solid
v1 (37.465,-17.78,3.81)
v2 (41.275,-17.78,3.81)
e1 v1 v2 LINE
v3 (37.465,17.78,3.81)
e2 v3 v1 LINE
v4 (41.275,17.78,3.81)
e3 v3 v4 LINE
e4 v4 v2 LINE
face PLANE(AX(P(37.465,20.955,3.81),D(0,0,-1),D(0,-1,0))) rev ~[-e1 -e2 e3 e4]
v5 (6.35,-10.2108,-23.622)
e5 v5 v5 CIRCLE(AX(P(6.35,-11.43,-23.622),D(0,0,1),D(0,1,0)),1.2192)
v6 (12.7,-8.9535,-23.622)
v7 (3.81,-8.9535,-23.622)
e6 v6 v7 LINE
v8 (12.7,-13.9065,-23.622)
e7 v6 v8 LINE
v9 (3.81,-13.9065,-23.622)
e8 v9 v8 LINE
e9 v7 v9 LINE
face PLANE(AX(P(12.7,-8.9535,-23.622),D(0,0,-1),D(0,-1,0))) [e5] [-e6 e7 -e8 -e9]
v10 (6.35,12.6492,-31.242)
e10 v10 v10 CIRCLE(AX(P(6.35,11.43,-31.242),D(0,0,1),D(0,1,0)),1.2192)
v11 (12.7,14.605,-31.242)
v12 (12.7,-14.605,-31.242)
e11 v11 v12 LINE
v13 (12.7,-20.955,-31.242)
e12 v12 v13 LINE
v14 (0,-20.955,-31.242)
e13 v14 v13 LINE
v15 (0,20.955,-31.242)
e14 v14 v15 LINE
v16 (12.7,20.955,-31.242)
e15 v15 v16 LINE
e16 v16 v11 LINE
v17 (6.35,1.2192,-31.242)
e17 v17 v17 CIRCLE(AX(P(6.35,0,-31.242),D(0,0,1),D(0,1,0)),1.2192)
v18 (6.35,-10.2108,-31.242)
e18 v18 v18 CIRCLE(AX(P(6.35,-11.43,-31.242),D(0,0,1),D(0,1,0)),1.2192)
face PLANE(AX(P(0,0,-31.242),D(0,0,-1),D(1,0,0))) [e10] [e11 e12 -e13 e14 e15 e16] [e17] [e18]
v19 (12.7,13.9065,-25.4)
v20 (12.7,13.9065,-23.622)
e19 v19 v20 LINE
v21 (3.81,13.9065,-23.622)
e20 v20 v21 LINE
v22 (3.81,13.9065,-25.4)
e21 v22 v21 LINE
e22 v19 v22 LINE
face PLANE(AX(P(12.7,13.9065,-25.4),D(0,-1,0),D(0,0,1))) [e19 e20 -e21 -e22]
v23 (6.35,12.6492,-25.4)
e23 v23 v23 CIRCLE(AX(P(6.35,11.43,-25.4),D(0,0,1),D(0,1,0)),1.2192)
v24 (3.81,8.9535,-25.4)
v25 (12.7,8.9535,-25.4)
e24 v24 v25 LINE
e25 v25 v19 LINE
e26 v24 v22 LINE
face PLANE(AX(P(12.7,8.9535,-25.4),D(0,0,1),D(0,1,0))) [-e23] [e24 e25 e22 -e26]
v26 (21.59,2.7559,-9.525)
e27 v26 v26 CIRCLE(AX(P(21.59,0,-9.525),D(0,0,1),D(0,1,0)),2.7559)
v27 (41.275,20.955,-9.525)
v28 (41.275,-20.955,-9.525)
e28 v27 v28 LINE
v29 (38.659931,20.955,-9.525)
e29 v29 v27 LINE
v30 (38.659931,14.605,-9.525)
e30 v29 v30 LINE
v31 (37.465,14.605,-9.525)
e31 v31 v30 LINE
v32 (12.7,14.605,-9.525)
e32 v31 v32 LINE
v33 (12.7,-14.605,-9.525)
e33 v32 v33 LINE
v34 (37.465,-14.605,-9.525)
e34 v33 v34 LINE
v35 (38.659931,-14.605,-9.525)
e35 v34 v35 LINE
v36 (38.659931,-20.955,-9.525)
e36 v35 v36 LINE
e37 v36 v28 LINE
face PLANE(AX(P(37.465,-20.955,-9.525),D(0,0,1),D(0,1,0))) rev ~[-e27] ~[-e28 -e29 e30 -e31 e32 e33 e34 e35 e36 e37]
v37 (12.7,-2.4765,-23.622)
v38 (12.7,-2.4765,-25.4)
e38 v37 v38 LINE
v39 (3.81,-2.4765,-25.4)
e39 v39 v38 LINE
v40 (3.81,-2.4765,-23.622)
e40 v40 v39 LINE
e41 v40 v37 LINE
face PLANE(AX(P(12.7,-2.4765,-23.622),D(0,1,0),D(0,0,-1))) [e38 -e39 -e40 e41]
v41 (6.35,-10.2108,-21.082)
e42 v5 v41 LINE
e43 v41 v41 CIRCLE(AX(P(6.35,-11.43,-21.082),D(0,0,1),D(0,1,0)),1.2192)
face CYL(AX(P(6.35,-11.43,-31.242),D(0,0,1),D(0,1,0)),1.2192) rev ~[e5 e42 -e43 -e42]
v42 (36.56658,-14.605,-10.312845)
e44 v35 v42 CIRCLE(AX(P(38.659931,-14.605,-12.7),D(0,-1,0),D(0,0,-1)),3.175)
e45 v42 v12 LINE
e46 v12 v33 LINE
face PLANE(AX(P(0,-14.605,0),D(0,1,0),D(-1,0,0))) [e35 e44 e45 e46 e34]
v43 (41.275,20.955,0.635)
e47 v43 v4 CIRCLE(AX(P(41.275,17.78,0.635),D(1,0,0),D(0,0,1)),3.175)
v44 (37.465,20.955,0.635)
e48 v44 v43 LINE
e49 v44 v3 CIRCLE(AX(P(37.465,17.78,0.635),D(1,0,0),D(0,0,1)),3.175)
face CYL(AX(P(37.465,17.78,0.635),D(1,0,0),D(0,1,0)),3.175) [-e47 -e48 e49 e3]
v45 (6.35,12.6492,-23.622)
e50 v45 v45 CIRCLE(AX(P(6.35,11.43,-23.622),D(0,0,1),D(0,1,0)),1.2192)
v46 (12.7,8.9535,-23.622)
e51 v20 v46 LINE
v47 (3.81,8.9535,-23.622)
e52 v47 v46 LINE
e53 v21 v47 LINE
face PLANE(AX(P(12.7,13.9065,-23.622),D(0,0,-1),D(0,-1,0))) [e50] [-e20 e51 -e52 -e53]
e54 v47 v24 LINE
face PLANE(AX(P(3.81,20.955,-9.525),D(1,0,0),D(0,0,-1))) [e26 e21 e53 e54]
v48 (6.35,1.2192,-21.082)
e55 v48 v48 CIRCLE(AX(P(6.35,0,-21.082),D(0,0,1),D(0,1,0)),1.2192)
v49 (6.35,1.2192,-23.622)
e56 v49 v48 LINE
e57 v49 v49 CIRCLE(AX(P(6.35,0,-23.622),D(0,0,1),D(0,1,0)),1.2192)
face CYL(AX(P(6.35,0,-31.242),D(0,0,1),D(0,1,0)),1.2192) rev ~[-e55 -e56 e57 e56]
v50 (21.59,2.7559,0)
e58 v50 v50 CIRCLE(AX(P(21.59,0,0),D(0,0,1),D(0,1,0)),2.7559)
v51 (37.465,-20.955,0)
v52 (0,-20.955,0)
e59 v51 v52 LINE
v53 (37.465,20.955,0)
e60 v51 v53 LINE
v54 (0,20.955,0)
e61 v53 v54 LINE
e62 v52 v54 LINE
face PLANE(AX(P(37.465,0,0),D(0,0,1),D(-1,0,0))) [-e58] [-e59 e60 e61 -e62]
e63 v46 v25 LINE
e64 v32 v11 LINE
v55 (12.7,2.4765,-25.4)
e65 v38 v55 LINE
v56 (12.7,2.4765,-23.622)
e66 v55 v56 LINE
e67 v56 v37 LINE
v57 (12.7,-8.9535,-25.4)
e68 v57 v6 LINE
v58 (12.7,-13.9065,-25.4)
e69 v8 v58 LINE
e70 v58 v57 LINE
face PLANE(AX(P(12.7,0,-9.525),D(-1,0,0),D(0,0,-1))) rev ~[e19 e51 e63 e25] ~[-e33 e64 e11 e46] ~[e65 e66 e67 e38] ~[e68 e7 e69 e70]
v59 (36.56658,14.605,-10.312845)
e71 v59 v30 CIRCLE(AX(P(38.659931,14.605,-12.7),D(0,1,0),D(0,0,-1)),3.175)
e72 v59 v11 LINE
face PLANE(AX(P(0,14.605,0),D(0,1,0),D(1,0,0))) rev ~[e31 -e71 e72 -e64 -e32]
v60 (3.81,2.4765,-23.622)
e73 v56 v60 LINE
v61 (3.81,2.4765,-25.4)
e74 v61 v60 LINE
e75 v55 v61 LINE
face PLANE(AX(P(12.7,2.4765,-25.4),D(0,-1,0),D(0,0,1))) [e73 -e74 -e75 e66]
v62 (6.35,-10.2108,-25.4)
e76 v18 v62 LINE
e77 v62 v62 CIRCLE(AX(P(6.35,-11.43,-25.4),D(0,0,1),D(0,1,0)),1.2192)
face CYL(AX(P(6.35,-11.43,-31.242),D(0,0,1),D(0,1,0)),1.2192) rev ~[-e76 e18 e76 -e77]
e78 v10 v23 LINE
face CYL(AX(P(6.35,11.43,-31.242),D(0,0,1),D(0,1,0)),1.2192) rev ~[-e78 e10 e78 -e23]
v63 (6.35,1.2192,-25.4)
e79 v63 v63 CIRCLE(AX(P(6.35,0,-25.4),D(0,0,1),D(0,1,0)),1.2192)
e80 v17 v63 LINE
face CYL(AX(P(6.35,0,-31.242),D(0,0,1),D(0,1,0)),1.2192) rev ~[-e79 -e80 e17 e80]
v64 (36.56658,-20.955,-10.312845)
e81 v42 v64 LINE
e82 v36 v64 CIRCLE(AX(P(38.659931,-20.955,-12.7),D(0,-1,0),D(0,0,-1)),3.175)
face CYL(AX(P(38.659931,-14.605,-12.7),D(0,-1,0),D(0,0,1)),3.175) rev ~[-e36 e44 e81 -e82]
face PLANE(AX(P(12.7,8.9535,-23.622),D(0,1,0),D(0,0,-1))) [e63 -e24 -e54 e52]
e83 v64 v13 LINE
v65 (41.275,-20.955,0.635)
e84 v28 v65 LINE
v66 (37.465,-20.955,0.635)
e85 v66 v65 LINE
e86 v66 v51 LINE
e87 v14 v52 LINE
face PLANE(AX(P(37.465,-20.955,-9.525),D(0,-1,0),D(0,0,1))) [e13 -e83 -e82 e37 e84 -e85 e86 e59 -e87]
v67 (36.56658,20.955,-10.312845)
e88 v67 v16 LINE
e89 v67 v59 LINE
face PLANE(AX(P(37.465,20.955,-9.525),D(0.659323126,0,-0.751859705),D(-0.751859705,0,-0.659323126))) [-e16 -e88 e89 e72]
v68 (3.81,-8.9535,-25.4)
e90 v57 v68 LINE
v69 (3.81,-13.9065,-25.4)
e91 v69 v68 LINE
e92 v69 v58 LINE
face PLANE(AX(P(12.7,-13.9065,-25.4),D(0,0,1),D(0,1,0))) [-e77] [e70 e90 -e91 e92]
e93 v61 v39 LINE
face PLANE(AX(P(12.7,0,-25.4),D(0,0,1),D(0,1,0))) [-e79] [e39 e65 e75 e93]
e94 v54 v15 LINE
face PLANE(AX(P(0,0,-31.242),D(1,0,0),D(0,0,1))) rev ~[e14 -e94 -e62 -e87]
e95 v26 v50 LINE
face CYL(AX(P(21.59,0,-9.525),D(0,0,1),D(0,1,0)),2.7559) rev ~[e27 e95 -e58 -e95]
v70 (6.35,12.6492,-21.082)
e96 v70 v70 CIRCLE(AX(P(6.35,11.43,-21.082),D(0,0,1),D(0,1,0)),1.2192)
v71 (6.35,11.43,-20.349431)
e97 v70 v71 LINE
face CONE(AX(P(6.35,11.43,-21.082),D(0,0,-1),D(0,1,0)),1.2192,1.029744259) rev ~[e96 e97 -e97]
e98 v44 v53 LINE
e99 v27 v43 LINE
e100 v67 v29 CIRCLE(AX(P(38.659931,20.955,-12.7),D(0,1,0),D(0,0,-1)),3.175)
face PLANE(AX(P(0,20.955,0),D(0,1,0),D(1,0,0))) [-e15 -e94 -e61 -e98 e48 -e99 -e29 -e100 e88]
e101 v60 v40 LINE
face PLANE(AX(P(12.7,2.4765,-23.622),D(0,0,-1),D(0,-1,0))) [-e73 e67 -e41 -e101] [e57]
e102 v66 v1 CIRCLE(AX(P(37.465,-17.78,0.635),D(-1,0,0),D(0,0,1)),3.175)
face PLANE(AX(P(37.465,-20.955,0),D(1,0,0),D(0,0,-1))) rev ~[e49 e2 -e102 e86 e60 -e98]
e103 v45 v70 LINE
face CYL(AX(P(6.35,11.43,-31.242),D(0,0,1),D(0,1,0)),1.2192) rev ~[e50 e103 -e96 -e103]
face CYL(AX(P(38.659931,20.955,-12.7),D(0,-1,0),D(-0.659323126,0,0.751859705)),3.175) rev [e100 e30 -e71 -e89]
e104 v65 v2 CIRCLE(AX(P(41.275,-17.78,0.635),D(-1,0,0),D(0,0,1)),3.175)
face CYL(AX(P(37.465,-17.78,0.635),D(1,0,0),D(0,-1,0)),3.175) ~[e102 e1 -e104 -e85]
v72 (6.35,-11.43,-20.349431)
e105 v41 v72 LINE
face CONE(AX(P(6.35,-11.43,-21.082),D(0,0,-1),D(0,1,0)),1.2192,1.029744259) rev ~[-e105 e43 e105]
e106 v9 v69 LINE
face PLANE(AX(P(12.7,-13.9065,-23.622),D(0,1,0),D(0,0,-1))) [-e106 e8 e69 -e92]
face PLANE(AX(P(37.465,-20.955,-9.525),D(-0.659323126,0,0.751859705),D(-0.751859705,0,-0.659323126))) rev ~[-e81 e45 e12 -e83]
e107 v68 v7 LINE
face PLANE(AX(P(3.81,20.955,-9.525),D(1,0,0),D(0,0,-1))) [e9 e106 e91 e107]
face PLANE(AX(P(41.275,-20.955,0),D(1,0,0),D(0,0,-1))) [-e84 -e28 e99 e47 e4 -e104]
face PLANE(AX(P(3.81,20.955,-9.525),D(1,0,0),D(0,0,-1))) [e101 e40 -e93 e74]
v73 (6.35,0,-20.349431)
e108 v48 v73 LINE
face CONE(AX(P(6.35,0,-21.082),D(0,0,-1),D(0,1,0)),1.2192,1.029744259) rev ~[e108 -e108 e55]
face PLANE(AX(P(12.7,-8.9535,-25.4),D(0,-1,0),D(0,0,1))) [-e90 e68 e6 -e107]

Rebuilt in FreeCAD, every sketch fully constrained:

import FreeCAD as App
import Part
import Sketcher
Q = App.Units.Quantity


def edges_at(feature, points):
    """Names of the edges that pass closest to the given points."""
    edges = feature.Shape.Edges
    near = lambda p: min(range(len(edges)), key=lambda i: edges[i].distToShape(Part.Vertex(*p))[0])
    return sorted({f"Edge{near(p) + 1}" for p in points})


def add_polygon(sketch, points):
    """Adds a closed chain of lines whose ends are joined by coincident constraints."""
    first, n = sketch.GeometryCount, len(points)
    for a, b in zip(points, points[1:] + points[:1]):
        sketch.addGeometry(Part.LineSegment(App.Vector(*a, 0), App.Vector(*b, 0)), False)
    for i in range(n):
        sketch.addConstraint(Sketcher.Constraint("Coincident", first + i, 2, first + (i + 1) % n, 1))

doc = App.newDocument("Part")
params = doc.addObject("Spreadsheet::Sheet", "Params")
for row, (alias, value) in enumerate([
    ("sketch1_width", "0.5 in"),
    ("sketch1_height", "1.23 in"),
    ("sketch1_width2", "1.475 in"),
    ("sketch1_height2", "0.375 in"),
    ("pad1_length", "1.65 in"),
    ("sketch2_diameter", "0.217 in"),
    ("hole_diameter", "0.217 in"),
    ("sketch3_width", "0.975 in"),
    ("sketch3_height", "0.855 in"),
    ("pad2_length", "0.25 in"),
    ("sketch4_diameter", "0.096 in"),
    ("hole2_diameter", "0.096 in"),
    ("hole2_depth", "0.4 in"),
    ("sketch5_height", "0.07 in"),
    ("sketch5_width", "0.195 in"),
    ("pocket1_length", "0.4 in"),
    ("pocket1_length2", "0.35 in"),
    ("sketch6_width", "0.975 in"),
    ("sketch6_height", "0.855 in"),
    ("pad3_length", "0.25 in"),
    ("sketch7_width", "1.65 in"),
    ("sketch7_height", "0.525 in"),
    ("pad4_length", "0.15 in"),
    ("fillet_radius", "0.125 in"),
], start=1):
    params.set(f"A{row}", alias)
    params.set(f"B{row}", "=" + value)
    params.setAlias(f"B{row}", alias)

body = doc.addObject("PartDesign::Body", "Body")

# Sketch on XZ plane
sketch1 = doc.addObject("Sketcher::SketchObject", "Sketch")
body.addObject(sketch1)
sketch1.AttachmentSupport = (doc.XZ_Plane, [""])
sketch1.MapMode = "FlatFace"
add_polygon(sketch1, [(12.7, -31.242), (0, -31.242), (0, 0), (37.465, 0), (37.465, -9.525), (12.7, -9.525)])  # lines 0-5
sketch1.addConstraint(Sketcher.Constraint("Horizontal", 0))
sketch1.addConstraint(Sketcher.Constraint("Vertical", 1))
sketch1.addConstraint(Sketcher.Constraint("Horizontal", 2))
sketch1.addConstraint(Sketcher.Constraint("Vertical", 3))
sketch1.addConstraint(Sketcher.Constraint("Horizontal", 4))
sketch1.addConstraint(Sketcher.Constraint("Vertical", 5))
sketch1.addConstraint(Sketcher.Constraint("Coincident", 1, 2, -1, 1))
sketch1.addConstraint(Sketcher.Constraint("DistanceX", 0, 2, 0, 1, Q("0.5 in")))
sketch1.addConstraint(Sketcher.Constraint("DistanceY", 1, 1, 1, 2, Q("1.23 in")))
sketch1.addConstraint(Sketcher.Constraint("DistanceX", 2, 1, 2, 2, Q("1.475 in")))
sketch1.addConstraint(Sketcher.Constraint("DistanceY", 3, 2, 3, 1, Q("0.375 in")))
sketch1.setExpression("Constraints[13]", "Params.sketch1_width")
sketch1.setExpression("Constraints[14]", "Params.sketch1_height")
sketch1.setExpression("Constraints[15]", "Params.sketch1_width2")
sketch1.setExpression("Constraints[16]", "Params.sketch1_height2")
pad1 = doc.addObject("PartDesign::Pad", "Pad")
body.addObject(pad1)
pad1.Profile = sketch1
pad1.setExpression("Length", "Params.pad1_length")
pad1.Midplane = True

# Sketch on XY plane
sketch2 = doc.addObject("Sketcher::SketchObject", "Sketch001")
body.addObject(sketch2)
sketch2.AttachmentSupport = (doc.XY_Plane, [""])
sketch2.MapMode = "FlatFace"
sketch2.AttachmentOffset = App.Placement(App.Vector(0, 0, -0.375 * 25.4), App.Rotation())
sketch2.addGeometry(Part.Circle(App.Vector(21.59, 0, 0), App.Vector(0, 0, 1), 2.7559), False)
sketch2.addConstraint(Sketcher.Constraint("PointOnObject", 0, 3, -1))
sketch2.addConstraint(Sketcher.Constraint("Diameter", 0, Q("0.217 in")))
sketch2.addConstraint(Sketcher.Constraint("DistanceX", -1, 1, 0, 3, Q("0.85 in")))
sketch2.setExpression("Constraints[1]", "Params.sketch2_diameter")
doc.recompute()
hole = doc.addObject("PartDesign::Hole", "Hole")
body.addObject(hole)
hole.Profile = sketch2
hole.ThreadType = "None"
hole.setExpression("Diameter", "Params.hole_diameter")
hole.DepthType = "ThroughAll"
hole.Reversed = True

# Sketch on XZ plane
sketch3 = doc.addObject("Sketcher::SketchObject", "Sketch002")
body.addObject(sketch3)
sketch3.AttachmentSupport = (doc.XZ_Plane, [""])
sketch3.MapMode = "FlatFace"
sketch3.AttachmentOffset = App.Placement(App.Vector(0, 0, 0.825 * 25.4), App.Rotation())
add_polygon(sketch3, [(37.465, -9.525), (12.7, -31.242), (12.7, -9.525)])  # lines 0-2
sketch3.addConstraint(Sketcher.Constraint("Vertical", 1))
sketch3.addConstraint(Sketcher.Constraint("Horizontal", 2))
sketch3.addConstraint(Sketcher.Constraint("DistanceX", -1, 1, 0, 2, Q("0.5 in")))
sketch3.addConstraint(Sketcher.Constraint("DistanceX", 2, 1, 2, 2, Q("0.975 in")))
sketch3.addConstraint(Sketcher.Constraint("DistanceY", 1, 1, 1, 2, Q("0.855 in")))
sketch3.addConstraint(Sketcher.Constraint("DistanceY", 0, 2, -1, 1, Q("1.23 in")))
sketch3.setExpression("Constraints[6]", "Params.sketch3_width")
sketch3.setExpression("Constraints[7]", "Params.sketch3_height")
pad2 = doc.addObject("PartDesign::Pad", "Pad001")
body.addObject(pad2)
pad2.Profile = sketch3
pad2.setExpression("Length", "Params.pad2_length")
pad2.Reversed = True

# Sketch on XY plane
sketch4 = doc.addObject("Sketcher::SketchObject", "Sketch003")
body.addObject(sketch4)
sketch4.AttachmentSupport = (doc.XY_Plane, [""])
sketch4.MapMode = "FlatFace"
sketch4.AttachmentOffset = App.Placement(App.Vector(0, 0, -1.23 * 25.4), App.Rotation())
sketch4.addGeometry(Part.Circle(App.Vector(6.35, 11.43, 0), App.Vector(0, 0, 1), 1.2192), False)
sketch4.addGeometry(Part.Circle(App.Vector(6.35, -11.43, 0), App.Vector(0, 0, 1), 1.2192), False)
sketch4.addGeometry(Part.Circle(App.Vector(6.35, 0, 0), App.Vector(0, 0, 1), 1.2192), False)
sketch4.addConstraint(Sketcher.Constraint("Equal", 0, 1))
sketch4.addConstraint(Sketcher.Constraint("Equal", 1, 2))
sketch4.addConstraint(Sketcher.Constraint("Symmetric", 0, 3, 1, 3, -1))
sketch4.addConstraint(Sketcher.Constraint("PointOnObject", 2, 3, -1))
sketch4.addConstraint(Sketcher.Constraint("Vertical", 1, 3, 2, 3))
sketch4.addConstraint(Sketcher.Constraint("Diameter", 0, Q("0.096 in")))
sketch4.addConstraint(Sketcher.Constraint("DistanceY", 1, 3, 0, 3, Q("0.9 in")))
sketch4.addConstraint(Sketcher.Constraint("DistanceX", -1, 1, 0, 3, Q("0.25 in")))
sketch4.setExpression("Constraints[5]", "Params.sketch4_diameter")
doc.recompute()
hole2 = doc.addObject("PartDesign::Hole", "Hole001")
body.addObject(hole2)
hole2.Profile = sketch4
hole2.ThreadType = "None"
hole2.setExpression("Diameter", "Params.hole2_diameter")
hole2.DepthType = "Dimension"
hole2.setExpression("Depth", "Params.hole2_depth")
hole2.DrillPoint = "Angled"
hole2.DrillPointAngle = 118
hole2.Reversed = True

# Sketch on YZ plane
sketch5 = doc.addObject("Sketcher::SketchObject", "Sketch004")
body.addObject(sketch5)
sketch5.AttachmentSupport = (doc.YZ_Plane, [""])
sketch5.MapMode = "FlatFace"
sketch5.AttachmentOffset = App.Placement(App.Vector(0, 0, 0.5 * 25.4), App.Rotation())
add_polygon(sketch5, [(2.4765, -23.622), (-2.4765, -23.622), (-2.4765, -25.4), (2.4765, -25.4)])  # lines 0-3
add_polygon(sketch5, [(13.9065, -23.622), (8.9535, -23.622), (8.9535, -25.4), (13.9065, -25.4)])  # lines 4-7
add_polygon(sketch5, [(-8.9535, -23.622), (-13.9065, -23.622), (-13.9065, -25.4), (-8.9535, -25.4)])  # lines 8-11
sketch5.addConstraint(Sketcher.Constraint("Horizontal", 0))
sketch5.addConstraint(Sketcher.Constraint("Vertical", 1))
sketch5.addConstraint(Sketcher.Constraint("Horizontal", 2))
sketch5.addConstraint(Sketcher.Constraint("Vertical", 3))
sketch5.addConstraint(Sketcher.Constraint("Horizontal", 4))
sketch5.addConstraint(Sketcher.Constraint("Vertical", 5))
sketch5.addConstraint(Sketcher.Constraint("Horizontal", 6))
sketch5.addConstraint(Sketcher.Constraint("Vertical", 7))
sketch5.addConstraint(Sketcher.Constraint("Horizontal", 8))
sketch5.addConstraint(Sketcher.Constraint("Vertical", 9))
sketch5.addConstraint(Sketcher.Constraint("Horizontal", 10))
sketch5.addConstraint(Sketcher.Constraint("Vertical", 11))
sketch5.addConstraint(Sketcher.Constraint("Symmetric", 7, 2, 8, 2, -2))
sketch5.addConstraint(Sketcher.Constraint("Symmetric", 5, 2, 10, 2, -2))
sketch5.addConstraint(Sketcher.Constraint("Horizontal", 3, 2, 4, 2))
sketch5.addConstraint(Sketcher.Constraint("Horizontal", 2, 2, 5, 2))
sketch5.addConstraint(Sketcher.Constraint("Equal", 2, 4))
sketch5.addConstraint(Sketcher.Constraint("DistanceY", 1, 2, 1, 1, Q("0.07 in")))
sketch5.addConstraint(Sketcher.Constraint("DistanceX", 0, 2, 0, 1, Q("0.195 in")))
sketch5.addConstraint(Sketcher.Constraint("DistanceX", 0, 2, 4, 2, Q("0.45 in")))
sketch5.addConstraint(Sketcher.Constraint("DistanceX", 8, 2, 0, 2, Q("0.45 in")))
sketch5.addConstraint(Sketcher.Constraint("DistanceY", 1, 2, -1, 1, Q("1 in")))
sketch5.setExpression("Constraints[29]", "Params.sketch5_height")
sketch5.setExpression("Constraints[30]", "Params.sketch5_width")
pocket1 = doc.addObject("PartDesign::Pocket", "Pocket")
body.addObject(pocket1)
pocket1.Profile = sketch5
pocket1.Type = "TwoLengths"
pocket1.setExpression("Length", "Params.pocket1_length")
pocket1.setExpression("Length2", "Params.pocket1_length2")
pocket1.Reversed = True

# Sketch on XZ plane
sketch6 = doc.addObject("Sketcher::SketchObject", "Sketch005")
body.addObject(sketch6)
sketch6.AttachmentSupport = (doc.XZ_Plane, [""])
sketch6.MapMode = "FlatFace"
sketch6.AttachmentOffset = App.Placement(App.Vector(0, 0, -0.825 * 25.4), App.Rotation())
add_polygon(sketch6, [(12.7, -31.242), (12.7, -9.525), (37.465, -9.525)])  # lines 0-2
sketch6.addConstraint(Sketcher.Constraint("Vertical", 0))
sketch6.addConstraint(Sketcher.Constraint("Horizontal", 1))
sketch6.addConstraint(Sketcher.Constraint("DistanceX", -1, 1, 0, 2, Q("0.5 in")))
sketch6.addConstraint(Sketcher.Constraint("DistanceX", 1, 1, 1, 2, Q("0.975 in")))
sketch6.addConstraint(Sketcher.Constraint("DistanceY", 0, 1, 0, 2, Q("0.855 in")))
sketch6.addConstraint(Sketcher.Constraint("DistanceY", 2, 2, -1, 1, Q("1.23 in")))
sketch6.setExpression("Constraints[6]", "Params.sketch6_width")
sketch6.setExpression("Constraints[7]", "Params.sketch6_height")
pad3 = doc.addObject("PartDesign::Pad", "Pad002")
body.addObject(pad3)
pad3.Profile = sketch6
pad3.setExpression("Length", "Params.pad3_length")

# Sketch on YZ plane
sketch7 = doc.addObject("Sketcher::SketchObject", "Sketch006")
body.addObject(sketch7)
sketch7.AttachmentSupport = (doc.YZ_Plane, [""])
sketch7.MapMode = "FlatFace"
sketch7.AttachmentOffset = App.Placement(App.Vector(0, 0, 1.475 * 25.4), App.Rotation())
add_polygon(sketch7, [(-20.955, -9.525), (20.955, -9.525), (20.955, 3.81), (-20.955, 3.81)])  # lines 0-3
sketch7.addConstraint(Sketcher.Constraint("Horizontal", 0))
sketch7.addConstraint(Sketcher.Constraint("Vertical", 1))
sketch7.addConstraint(Sketcher.Constraint("Horizontal", 2))
sketch7.addConstraint(Sketcher.Constraint("Vertical", 3))
sketch7.addConstraint(Sketcher.Constraint("DistanceY", -1, 1, 1, 2, Q("0.15 in")))
sketch7.addConstraint(Sketcher.Constraint("DistanceX", 0, 1, 0, 2, Q("1.65 in")))
sketch7.addConstraint(Sketcher.Constraint("DistanceY", 1, 1, 1, 2, Q("0.525 in")))
sketch7.addConstraint(Sketcher.Constraint("DistanceX", -1, 1, 0, 2, Q("0.825 in")))
sketch7.setExpression("Constraints[9]", "Params.sketch7_width")
sketch7.setExpression("Constraints[10]", "Params.sketch7_height")
pad4 = doc.addObject("PartDesign::Pad", "Pad003")
body.addObject(pad4)
pad4.Profile = sketch7
pad4.setExpression("Length", "Params.pad4_length")
doc.recompute()

fillet = doc.addObject("PartDesign::Fillet", "Fillet")
body.addObject(fillet)
fillet.Base = (pad4, edges_at(pad4, [
    (37.465, 17.78, -9.525),
    (37.465, -17.78, -9.525),
    (39.37, 20.955, 3.81),
    (39.37, -20.955, 3.81),
]))
fillet.setExpression("Radius", "Params.fillet_radius")

doc.recompute()
